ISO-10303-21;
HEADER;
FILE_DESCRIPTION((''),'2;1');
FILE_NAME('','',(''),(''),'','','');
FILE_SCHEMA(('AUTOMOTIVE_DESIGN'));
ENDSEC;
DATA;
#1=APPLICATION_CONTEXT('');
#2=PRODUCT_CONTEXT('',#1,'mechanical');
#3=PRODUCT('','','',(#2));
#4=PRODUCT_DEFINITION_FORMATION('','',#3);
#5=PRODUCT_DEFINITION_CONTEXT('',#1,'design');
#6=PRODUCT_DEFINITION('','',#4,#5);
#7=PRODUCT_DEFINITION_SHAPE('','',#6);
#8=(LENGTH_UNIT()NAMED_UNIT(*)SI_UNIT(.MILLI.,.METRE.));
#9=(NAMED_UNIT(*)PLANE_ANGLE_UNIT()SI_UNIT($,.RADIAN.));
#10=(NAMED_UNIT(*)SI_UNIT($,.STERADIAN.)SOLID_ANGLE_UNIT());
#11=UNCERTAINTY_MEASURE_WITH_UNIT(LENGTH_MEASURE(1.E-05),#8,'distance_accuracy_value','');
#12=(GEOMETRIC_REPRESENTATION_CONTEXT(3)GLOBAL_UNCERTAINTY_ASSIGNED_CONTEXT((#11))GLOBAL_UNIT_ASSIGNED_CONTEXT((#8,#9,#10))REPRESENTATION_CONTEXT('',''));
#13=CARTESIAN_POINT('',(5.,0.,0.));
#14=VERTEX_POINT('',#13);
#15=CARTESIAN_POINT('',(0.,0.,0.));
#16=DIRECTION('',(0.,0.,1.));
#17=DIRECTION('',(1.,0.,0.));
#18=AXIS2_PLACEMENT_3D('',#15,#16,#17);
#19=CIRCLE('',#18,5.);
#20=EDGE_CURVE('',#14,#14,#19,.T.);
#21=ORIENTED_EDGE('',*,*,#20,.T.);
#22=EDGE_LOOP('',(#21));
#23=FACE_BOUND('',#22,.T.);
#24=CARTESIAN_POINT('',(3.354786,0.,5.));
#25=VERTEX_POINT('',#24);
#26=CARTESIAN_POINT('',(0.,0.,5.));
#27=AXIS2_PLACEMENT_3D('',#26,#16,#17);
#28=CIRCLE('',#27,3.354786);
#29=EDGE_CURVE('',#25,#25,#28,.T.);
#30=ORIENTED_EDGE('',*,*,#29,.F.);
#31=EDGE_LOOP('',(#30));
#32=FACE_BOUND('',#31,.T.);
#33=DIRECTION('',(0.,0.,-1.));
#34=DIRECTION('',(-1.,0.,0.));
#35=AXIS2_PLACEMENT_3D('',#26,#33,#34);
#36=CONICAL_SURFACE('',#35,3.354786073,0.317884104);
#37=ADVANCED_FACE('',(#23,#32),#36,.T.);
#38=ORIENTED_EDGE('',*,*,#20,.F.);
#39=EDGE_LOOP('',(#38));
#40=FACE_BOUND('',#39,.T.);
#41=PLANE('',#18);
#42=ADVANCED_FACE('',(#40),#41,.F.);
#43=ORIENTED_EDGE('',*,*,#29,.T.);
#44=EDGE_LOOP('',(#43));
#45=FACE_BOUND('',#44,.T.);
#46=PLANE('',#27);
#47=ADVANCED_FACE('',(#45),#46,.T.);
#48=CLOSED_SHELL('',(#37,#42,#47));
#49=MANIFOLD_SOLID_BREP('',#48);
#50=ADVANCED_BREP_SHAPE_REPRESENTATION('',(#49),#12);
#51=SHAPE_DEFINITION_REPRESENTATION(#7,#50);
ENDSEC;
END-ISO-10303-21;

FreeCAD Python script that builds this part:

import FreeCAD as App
import Part
import Sketcher

doc = App.newDocument("Part")
body = doc.addObject("PartDesign::Body", "Body")

sketch1 = body.newObject("Sketcher::SketchObject", "Sketch")
sketch1.AttachmentSupport = (doc.getObject("XY_Plane"), [""])
sketch1.MapMode = "FlatFace"
sketch1.addGeometry(Part.Circle(App.Vector(0, 0, 0), App.Vector(0, 0, 1), 5), False)
sketch1.addConstraint([
    Sketcher.Constraint("Coincident", 0, 3, -1, 1),
    Sketcher.Constraint("Diameter", 0, 10.0),
])

sketch2 = body.newObject("Sketcher::SketchObject", "Sketch001")
sketch2.AttachmentSupport = (doc.getObject("XY_Plane"), [""])
sketch2.MapMode = "FlatFace"
sketch2.AttachmentOffset = App.Placement(App.Vector(0, 0, 5), App.Rotation())
sketch2.addGeometry(Part.Circle(App.Vector(0, 0, 0), App.Vector(0, 0, 1), 3.354786), False)
sketch2.addConstraint([
    Sketcher.Constraint("Coincident", 0, 3, -1, 1),
    Sketcher.Constraint("Diameter", 0, 6.709572),
])

additiveloft = body.newObject("PartDesign::AdditiveLoft", "AdditiveLoft")
additiveloft.Profile = sketch1
additiveloft.Sections = [sketch2]

doc.recompute()
